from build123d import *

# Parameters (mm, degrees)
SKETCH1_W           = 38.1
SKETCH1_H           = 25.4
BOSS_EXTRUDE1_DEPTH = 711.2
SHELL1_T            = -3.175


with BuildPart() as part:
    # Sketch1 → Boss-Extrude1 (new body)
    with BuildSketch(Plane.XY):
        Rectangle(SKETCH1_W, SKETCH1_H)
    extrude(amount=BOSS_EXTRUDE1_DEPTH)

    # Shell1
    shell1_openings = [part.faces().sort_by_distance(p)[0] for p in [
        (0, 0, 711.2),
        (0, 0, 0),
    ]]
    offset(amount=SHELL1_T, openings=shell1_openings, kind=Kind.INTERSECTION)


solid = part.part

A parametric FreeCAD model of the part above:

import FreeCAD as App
import Part
import Sketcher
from FreeCAD import Vector
Q = App.Units.Quantity


def faces_at(feature, points):
    """Names of the faces that lie closest to the given points."""
    faces = feature.Shape.Faces
    near = lambda p: min(range(len(faces)), key=lambda i: faces[i].distToShape(Part.Vertex(*p))[0])
    return sorted({f"Face{near(p) + 1}" for p in points})


def add_polygon(sketch, points):
    """Adds a closed chain of lines whose ends are joined by coincident constraints."""
    first, n = sketch.GeometryCount, len(points)
    for a, b in zip(points, points[1:] + points[:1]):
        sketch.addGeometry(Part.LineSegment(App.Vector(*a, 0), App.Vector(*b, 0)), False)
    for i in range(n):
        sketch.addConstraint(Sketcher.Constraint("Coincident", first + i, 2, first + (i + 1) % n, 1))

doc = App.newDocument("Part")
body = doc.addObject("PartDesign::Body", "Body")

# Sketch on XY plane
sketch1 = doc.addObject("Sketcher::SketchObject", "Sketch")
body.addObject(sketch1)
sketch1.AttachmentSupport = (doc.XY_Plane, [""])
sketch1.MapMode = "FlatFace"
add_polygon(sketch1, [(-19, 13), (-19, -13), (19, -13), (19, 13)])  # lines 0-3
sketch1.addConstraint([
    Sketcher.Constraint("Vertical", 0),
    Sketcher.Constraint("Horizontal", 1),
    Sketcher.Constraint("Vertical", 2),
    Sketcher.Constraint("Horizontal", 3),
    Sketcher.Constraint("Symmetric", 0, 2, 2, 2, -1, 1),
    Sketcher.Constraint("DistanceY", 0, 2, 0, 1, Q("1 in")),
    Sketcher.Constraint("DistanceX", 1, 1, 1, 2, Q("1.5 in")),
])
pad1 = doc.addObject("PartDesign::Pad", "Pad")
body.addObject(pad1)
pad1.Profile = sketch1
pad1.Length = Q("28 in")
doc.recompute()

thickness = doc.addObject("PartDesign::Thickness", "Thickness")
body.addObject(thickness)
thickness.Base = (pad1, faces_at(pad1, [(0, 0, 711.2), (0, 0, 0)]))
thickness.Value = Q("0.125 in")
thickness.Reversed = True
thickness.Join = "Intersection"

doc.recompute()
